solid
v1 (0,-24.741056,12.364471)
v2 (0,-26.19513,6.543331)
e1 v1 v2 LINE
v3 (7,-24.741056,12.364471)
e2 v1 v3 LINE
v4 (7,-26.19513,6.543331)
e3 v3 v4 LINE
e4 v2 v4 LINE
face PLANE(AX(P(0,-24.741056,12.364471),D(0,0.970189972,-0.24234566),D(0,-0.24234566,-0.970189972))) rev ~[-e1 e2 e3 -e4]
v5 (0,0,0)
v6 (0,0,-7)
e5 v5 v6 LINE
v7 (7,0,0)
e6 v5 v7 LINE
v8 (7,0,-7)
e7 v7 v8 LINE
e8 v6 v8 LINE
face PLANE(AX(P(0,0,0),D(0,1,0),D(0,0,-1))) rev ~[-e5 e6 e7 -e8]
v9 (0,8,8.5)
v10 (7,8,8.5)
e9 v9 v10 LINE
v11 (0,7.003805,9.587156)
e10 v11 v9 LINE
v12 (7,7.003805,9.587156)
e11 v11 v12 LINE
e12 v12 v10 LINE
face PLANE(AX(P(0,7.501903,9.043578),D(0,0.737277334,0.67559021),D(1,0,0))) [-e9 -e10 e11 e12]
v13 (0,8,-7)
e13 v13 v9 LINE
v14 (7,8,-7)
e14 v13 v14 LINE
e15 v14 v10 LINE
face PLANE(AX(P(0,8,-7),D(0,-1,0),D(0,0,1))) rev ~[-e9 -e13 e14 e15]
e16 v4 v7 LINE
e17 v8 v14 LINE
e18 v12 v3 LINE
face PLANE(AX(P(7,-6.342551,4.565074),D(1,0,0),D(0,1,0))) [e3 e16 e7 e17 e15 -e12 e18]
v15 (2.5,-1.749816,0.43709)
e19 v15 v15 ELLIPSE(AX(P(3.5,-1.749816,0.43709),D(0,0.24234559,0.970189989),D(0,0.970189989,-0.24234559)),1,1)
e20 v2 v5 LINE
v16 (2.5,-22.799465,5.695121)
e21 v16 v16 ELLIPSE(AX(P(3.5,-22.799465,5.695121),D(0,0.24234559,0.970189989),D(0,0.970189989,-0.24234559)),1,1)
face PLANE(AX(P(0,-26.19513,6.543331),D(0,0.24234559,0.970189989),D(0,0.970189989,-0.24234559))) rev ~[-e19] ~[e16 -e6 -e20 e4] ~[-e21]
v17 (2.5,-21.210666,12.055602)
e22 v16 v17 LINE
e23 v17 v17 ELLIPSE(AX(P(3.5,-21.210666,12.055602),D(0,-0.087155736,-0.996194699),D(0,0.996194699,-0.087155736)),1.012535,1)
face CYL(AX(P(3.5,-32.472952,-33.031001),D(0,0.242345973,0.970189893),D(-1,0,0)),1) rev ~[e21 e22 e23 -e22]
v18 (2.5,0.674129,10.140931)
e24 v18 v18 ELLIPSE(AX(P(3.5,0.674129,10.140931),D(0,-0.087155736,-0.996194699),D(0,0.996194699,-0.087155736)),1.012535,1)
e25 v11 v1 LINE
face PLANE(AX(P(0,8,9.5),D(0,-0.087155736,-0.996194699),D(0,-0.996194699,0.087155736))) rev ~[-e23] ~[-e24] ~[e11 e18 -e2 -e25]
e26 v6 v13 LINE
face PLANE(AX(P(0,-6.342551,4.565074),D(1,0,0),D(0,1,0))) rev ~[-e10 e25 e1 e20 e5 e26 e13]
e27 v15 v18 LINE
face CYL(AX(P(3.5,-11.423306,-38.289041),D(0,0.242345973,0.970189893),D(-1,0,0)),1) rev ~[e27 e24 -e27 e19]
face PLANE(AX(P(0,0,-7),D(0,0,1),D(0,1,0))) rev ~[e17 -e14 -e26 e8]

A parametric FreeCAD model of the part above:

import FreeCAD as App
import Part
import Sketcher
from FreeCAD import Vector
Q = App.Units.Quantity


def edges_at(feature, points):
    """Names of the edges that pass closest to the given points."""
    edges = feature.Shape.Edges
    near = lambda p: min(range(len(edges)), key=lambda i: edges[i].distToShape(Part.Vertex(*p))[0])
    return sorted({f"Edge{near(p) + 1}" for p in points})


def add_polygon(sketch, points):
    """Adds a closed chain of lines whose ends are joined by coincident constraints."""
    first, n = sketch.GeometryCount, len(points)
    for a, b in zip(points, points[1:] + points[:1]):
        sketch.addGeometry(Part.LineSegment(App.Vector(*a, 0), App.Vector(*b, 0)), False)
    for i in range(n):
        sketch.addConstraint(Sketcher.Constraint("Coincident", first + i, 2, first + (i + 1) % n, 1))

doc = App.newDocument("Part")
body = doc.addObject("PartDesign::Body", "Body")

# Sketch on YZ plane
sketch1 = body.newObject("Sketcher::SketchObject", "Sketch")
sketch1.AttachmentSupport = (doc.getObject("YZ_Plane"), [""])
sketch1.MapMode = "FlatFace"
add_polygon(sketch1, [(-26.19513, 6.543331), (0, 0), (0, -7), (8, -7), (8, 9.5), (-24.741056, 12.364471)])  # lines 0-5
sketch1.addConstraint(Sketcher.Constraint("Vertical", 1))
sketch1.addConstraint(Sketcher.Constraint("Horizontal", 2))
sketch1.addConstraint(Sketcher.Constraint("Vertical", 3))
sketch1.addConstraint(Sketcher.Constraint("Coincident", 0, 2, -1, 1))
sketch1.addConstraint(Sketcher.Constraint("Perpendicular", 0, 5))
sketch1.addConstraint(Sketcher.Constraint("DistanceX", 2, 1, 2, 2, Q("8 mm")))
sketch1.addConstraint(Sketcher.Constraint("DistanceY", 1, 2, 1, 1, Q("7 mm")))
sketch1.addConstraint(Sketcher.Constraint("Angle", 4, Q("175 deg")))
sketch1.addConstraint(Sketcher.Constraint("Distance", 0, Q("27 mm")))
sketch1.addConstraint(Sketcher.Constraint("Distance", 5, Q("6 mm")))
sketch1.addConstraint(Sketcher.Constraint("DistanceY", 3, 1, 3, 2, Q("16.5 mm")))
pad1 = body.newObject("PartDesign::Pad", "Pad")
pad1.Profile = sketch1
pad1.Length = 7

# Sketch on an angled plane
sketch2 = body.newObject("Sketcher::SketchObject", "Sketch001")
sketch2.Placement = App.Placement(Vector(0, 0, 0), App.Rotation(Vector(1, 0, 0), Vector(0, -0.970189893, 0.242345973), Vector(0, -0.242345973, -0.970189893), "ZXY"))
sketch2.addGeometry(Part.Circle(Vector(3.5, 1.803581, 0), Vector(0, 0, 1), 1), False)
sketch2.addGeometry(Part.Circle(Vector(3.5, 23.5, 0), Vector(0, 0, 1), 1), False)
sketch2.addConstraint(Sketcher.Constraint("Equal", 0, 1))
sketch2.addConstraint(Sketcher.Constraint("Vertical", 0, 3, 1, 3))
sketch2.addConstraint(Sketcher.Constraint("Diameter", 0, Q("2 mm")))
sketch2.addConstraint(Sketcher.Constraint("DistanceX", -1, 1, 0, 3, Q("3.5 mm")))
sketch2.addConstraint(Sketcher.Constraint("DistanceY", -1, 1, 1, 3, Q("23.5 mm")))
sketch2.addConstraint(Sketcher.Constraint("DistanceY", -1, 1, 0, 3, Q("1.803581 mm")))
doc.recompute()
hole = body.newObject("PartDesign::Hole", "Hole")
hole.Profile = sketch2
hole.ThreadType = "None"
hole.Diameter = 2
hole.DepthType = "ThroughAll"
doc.recompute()

chamfer = body.newObject("PartDesign::Chamfer", "Chamfer")
chamfer.Base = (hole, edges_at(hole, [(3.5, 8, 9.5)]))
chamfer.Size = 1

doc.recompute()
